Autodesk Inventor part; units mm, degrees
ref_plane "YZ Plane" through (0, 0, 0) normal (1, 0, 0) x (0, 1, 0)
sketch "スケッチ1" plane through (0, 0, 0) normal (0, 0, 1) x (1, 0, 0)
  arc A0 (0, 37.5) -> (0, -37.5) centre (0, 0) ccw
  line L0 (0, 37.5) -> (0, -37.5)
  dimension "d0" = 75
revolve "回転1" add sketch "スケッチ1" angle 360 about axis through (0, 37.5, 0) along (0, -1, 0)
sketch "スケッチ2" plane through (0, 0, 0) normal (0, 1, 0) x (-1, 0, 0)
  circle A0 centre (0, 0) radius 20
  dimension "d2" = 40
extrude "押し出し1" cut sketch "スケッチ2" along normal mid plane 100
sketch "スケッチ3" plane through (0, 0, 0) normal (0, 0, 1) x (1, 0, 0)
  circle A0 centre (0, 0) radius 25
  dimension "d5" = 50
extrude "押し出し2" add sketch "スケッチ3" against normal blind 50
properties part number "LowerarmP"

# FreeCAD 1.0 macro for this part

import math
import FreeCAD as App
import Part
import Sketcher

doc = App.newDocument("Part")
params = doc.addObject("Spreadsheet::Sheet", "Params")
for row, (alias, value) in enumerate([
    ("sketch1_radius", "37.5 mm"),
    ("revolution_angle", "360 deg"),
    ("sketch2_diameter", "40 mm"),
    ("pocket1_length", "100 mm"),
    ("sketch3_diameter", "50 mm"),
    ("pad1_length", "50 mm"),
], start=1):
    params.set(f"A{row}", alias)
    params.set(f"B{row}", "=" + value)
    params.setAlias(f"B{row}", alias)

body = doc.addObject("PartDesign::Body", "Body")

# Sketch on XY plane
sketch1 = body.newObject("Sketcher::SketchObject", "Sketch")
sketch1.AttachmentSupport = (doc.getObject("XY_Plane"), [""])
sketch1.MapMode = "FlatFace"
sketch1.addGeometry([
    Part.LineSegment(App.Vector(0, -38, 0), App.Vector(0, 38, 0)),
    Part.ArcOfCircle(Part.Circle(App.Vector(0, 0, 0), App.Vector(0, 0, 1), 38), math.radians(90), math.radians(270)),
], False)
sketch1.addConstraint([
    Sketcher.Constraint("Coincident", 0, 1, 1, 2),
    Sketcher.Constraint("Coincident", 1, 1, 0, 2),
    Sketcher.Constraint("Vertical", 0),
    Sketcher.Constraint("Coincident", 1, 3, -1, 1),
    Sketcher.Constraint("PointOnObject", 0, 1, -2),
    Sketcher.Constraint("Radius", 1, 37.5),
])
sketch1.setExpression("Constraints[5]", "Params.sketch1_radius")
revolution = body.newObject("PartDesign::Revolution", "Revolution")
revolution.Profile = sketch1
revolution.ReferenceAxis = (sketch1, ["V_Axis"])
revolution.setExpression("Angle", "Params.revolution_angle")

# Sketch on XZ plane
sketch2 = body.newObject("Sketcher::SketchObject", "Sketch001")
sketch2.AttachmentSupport = (doc.getObject("XZ_Plane"), [""])
sketch2.MapMode = "FlatFace"
sketch2.addGeometry(Part.Circle(App.Vector(0, 0, 0), App.Vector(0, 0, 1), 20), False)
sketch2.addConstraint([
    Sketcher.Constraint("Coincident", 0, 3, -1, 1),
    Sketcher.Constraint("Diameter", 0, 40.0),
])
sketch2.setExpression("Constraints[1]", "Params.sketch2_diameter")
pocket1 = body.newObject("PartDesign::Pocket", "Pocket")
pocket1.Profile = sketch2
pocket1.setExpression("Length", "Params.pocket1_length")
pocket1.Midplane = True

# Sketch on XY plane
sketch3 = body.newObject("Sketcher::SketchObject", "Sketch002")
sketch3.AttachmentSupport = (doc.getObject("XY_Plane"), [""])
sketch3.MapMode = "FlatFace"
sketch3.addGeometry(Part.Circle(App.Vector(0, 0, 0), App.Vector(0, 0, 1), 25), False)
sketch3.addConstraint([
    Sketcher.Constraint("Coincident", 0, 3, -1, 1),
    Sketcher.Constraint("Diameter", 0, 50.0),
])
sketch3.setExpression("Constraints[1]", "Params.sketch3_diameter")
pad1 = body.newObject("PartDesign::Pad", "Pad")
pad1.Profile = sketch3
pad1.setExpression("Length", "Params.pad1_length")
pad1.Reversed = True

doc.recompute()
